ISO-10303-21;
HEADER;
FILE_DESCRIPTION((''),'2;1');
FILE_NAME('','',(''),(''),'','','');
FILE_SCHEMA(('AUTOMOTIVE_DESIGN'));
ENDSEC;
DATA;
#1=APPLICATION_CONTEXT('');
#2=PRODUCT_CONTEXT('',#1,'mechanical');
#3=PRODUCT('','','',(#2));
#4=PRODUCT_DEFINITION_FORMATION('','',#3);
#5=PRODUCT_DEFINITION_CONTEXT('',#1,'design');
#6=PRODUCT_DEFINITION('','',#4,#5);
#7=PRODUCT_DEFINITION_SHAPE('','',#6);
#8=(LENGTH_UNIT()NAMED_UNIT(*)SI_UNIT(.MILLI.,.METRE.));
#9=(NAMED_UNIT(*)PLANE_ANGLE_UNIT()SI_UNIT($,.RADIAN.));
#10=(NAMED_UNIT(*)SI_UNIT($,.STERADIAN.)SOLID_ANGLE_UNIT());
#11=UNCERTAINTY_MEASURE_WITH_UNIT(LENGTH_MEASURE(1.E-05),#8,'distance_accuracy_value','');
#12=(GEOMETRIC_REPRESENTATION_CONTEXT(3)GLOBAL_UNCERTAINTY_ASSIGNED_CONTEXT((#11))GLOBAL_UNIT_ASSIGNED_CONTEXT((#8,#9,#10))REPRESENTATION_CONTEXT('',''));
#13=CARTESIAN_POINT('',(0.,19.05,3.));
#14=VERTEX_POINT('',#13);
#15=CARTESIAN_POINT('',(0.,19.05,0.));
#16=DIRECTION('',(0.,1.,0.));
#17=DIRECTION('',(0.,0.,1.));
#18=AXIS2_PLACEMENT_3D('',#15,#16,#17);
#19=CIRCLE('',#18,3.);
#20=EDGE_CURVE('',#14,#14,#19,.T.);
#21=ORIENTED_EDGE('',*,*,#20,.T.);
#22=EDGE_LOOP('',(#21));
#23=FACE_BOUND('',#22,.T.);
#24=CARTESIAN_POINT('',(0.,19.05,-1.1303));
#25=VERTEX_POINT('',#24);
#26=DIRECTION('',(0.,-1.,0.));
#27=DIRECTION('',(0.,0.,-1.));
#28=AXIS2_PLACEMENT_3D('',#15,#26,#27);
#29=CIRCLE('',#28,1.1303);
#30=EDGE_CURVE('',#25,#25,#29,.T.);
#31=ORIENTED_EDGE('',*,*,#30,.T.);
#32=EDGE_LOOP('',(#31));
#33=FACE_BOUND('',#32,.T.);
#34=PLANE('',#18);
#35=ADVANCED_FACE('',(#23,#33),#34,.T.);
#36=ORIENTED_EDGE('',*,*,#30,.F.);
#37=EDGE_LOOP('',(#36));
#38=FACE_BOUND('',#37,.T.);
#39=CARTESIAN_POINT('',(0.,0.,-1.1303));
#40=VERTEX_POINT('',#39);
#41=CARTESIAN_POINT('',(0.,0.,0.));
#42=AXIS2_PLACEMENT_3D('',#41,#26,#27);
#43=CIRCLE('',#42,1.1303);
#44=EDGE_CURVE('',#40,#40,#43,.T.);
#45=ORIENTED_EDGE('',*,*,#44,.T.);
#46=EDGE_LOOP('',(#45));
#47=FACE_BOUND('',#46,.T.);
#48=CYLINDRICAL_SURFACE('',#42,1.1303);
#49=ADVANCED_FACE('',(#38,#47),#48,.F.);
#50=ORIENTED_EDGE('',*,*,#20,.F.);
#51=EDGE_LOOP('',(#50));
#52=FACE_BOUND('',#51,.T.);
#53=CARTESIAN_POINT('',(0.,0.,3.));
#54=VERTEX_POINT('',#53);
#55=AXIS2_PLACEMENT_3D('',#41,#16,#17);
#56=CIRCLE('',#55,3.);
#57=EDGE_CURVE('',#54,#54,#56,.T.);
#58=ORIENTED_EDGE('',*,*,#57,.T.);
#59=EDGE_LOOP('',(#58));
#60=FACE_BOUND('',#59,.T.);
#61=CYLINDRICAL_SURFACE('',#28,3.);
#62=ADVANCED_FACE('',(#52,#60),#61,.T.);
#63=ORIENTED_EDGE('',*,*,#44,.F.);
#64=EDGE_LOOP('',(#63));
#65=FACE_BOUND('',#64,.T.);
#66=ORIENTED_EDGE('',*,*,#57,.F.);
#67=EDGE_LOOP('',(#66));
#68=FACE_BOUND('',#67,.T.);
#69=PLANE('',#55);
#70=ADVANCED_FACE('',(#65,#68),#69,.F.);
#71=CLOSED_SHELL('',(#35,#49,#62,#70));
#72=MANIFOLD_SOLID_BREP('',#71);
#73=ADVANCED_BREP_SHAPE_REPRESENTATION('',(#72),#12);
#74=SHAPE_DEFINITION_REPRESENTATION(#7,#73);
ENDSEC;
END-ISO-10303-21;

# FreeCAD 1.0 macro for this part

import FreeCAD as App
import Part
import Sketcher

V = App.Vector
Q = App.Units.Quantity

doc = App.newDocument("Part")
body = doc.addObject("PartDesign::Body", "Body")

# Sketch on XZ plane
sketch1 = body.newObject("Sketcher::SketchObject", "Sketch")
sketch1.AttachmentSupport = (doc.getObject("XZ_Plane"), [""])
sketch1.MapMode = "FlatFace"
sketch1.addGeometry(Part.Circle(V(0, 0, 0), V(0, 0, 1), 3), False)
sketch1.addConstraint(Sketcher.Constraint("Coincident", 0, 3, -1, 1))
sketch1.addConstraint(Sketcher.Constraint("Diameter", 0, 6.0))
pad1 = body.newObject("PartDesign::Pad", "Pad")
pad1.Profile = sketch1
pad1.Length = Q("0.75 in")
pad1.Reversed = True

# Sketch on XZ plane
sketch2 = body.newObject("Sketcher::SketchObject", "Sketch001")
sketch2.AttachmentSupport = (doc.getObject("XZ_Plane"), [""])
sketch2.MapMode = "FlatFace"
sketch2.addGeometry(Part.Circle(V(0, 0, 0), V(0, 0, 1), 1.1), False)
sketch2.addConstraint(Sketcher.Constraint("Coincident", 0, 3, -1, 1))
sketch2.addConstraint(Sketcher.Constraint("Diameter", 0, Q("0.089 in")))
doc.recompute()
hole = body.newObject("PartDesign::Hole", "Hole")
hole.Profile = sketch2
hole.ThreadType = "None"
hole.Diameter = Q("0.089 in")
hole.DepthType = "ThroughAll"

doc.recompute()
